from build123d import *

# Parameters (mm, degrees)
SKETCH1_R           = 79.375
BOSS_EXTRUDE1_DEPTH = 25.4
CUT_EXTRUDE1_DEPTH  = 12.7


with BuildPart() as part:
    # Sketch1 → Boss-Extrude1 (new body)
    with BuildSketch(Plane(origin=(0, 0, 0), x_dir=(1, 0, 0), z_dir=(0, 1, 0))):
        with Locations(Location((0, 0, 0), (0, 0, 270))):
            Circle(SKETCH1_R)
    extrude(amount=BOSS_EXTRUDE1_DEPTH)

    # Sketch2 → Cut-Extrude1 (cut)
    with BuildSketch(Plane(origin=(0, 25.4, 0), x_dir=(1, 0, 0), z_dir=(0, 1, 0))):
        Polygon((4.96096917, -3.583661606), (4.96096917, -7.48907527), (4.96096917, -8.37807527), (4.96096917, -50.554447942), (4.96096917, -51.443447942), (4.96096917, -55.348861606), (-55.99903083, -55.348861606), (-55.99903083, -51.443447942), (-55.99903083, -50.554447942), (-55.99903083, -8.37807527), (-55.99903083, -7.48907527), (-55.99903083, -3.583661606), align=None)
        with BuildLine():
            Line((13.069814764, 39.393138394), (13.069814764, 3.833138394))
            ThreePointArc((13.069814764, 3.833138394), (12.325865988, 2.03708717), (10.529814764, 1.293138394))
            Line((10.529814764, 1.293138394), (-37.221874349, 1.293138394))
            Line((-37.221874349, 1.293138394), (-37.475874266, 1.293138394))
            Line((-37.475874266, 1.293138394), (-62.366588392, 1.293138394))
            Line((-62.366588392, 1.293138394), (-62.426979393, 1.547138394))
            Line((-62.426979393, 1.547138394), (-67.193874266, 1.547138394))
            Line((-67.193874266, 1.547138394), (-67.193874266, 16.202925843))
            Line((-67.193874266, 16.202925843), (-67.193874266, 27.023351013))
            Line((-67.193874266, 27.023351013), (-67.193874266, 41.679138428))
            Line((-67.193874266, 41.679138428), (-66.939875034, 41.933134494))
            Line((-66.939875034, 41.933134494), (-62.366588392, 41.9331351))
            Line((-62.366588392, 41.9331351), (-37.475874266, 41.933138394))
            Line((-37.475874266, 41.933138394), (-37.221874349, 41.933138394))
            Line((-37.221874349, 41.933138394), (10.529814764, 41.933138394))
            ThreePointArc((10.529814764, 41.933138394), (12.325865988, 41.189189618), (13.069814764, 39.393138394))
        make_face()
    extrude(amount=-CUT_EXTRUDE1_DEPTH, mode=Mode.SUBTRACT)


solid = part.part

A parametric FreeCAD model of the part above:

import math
import FreeCAD as App
import Part
import Sketcher

V = App.Vector
Q = App.Units.Quantity


def add_polygon(sketch, points):
    """Adds a closed chain of lines whose ends are joined by coincident constraints."""
    first, n = sketch.GeometryCount, len(points)
    for a, b in zip(points, points[1:] + points[:1]):
        sketch.addGeometry(Part.LineSegment(App.Vector(*a, 0), App.Vector(*b, 0)), False)
    for i in range(n):
        sketch.addConstraint(Sketcher.Constraint("Coincident", first + i, 2, first + (i + 1) % n, 1))

doc = App.newDocument("Part")
body = doc.addObject("PartDesign::Body", "Body")

sketch1 = body.newObject("Sketcher::SketchObject", "Sketch")
sketch1.AttachmentSupport = (doc.getObject("XZ_Plane"), [""])
sketch1.MapMode = "FlatFace"
sketch1.addGeometry(Part.Circle(V(0, 0, 0), V(0, 0, 1), 79.375), False)
sketch1.addConstraint([
    Sketcher.Constraint("Coincident", 0, 3, -1, 1),
    Sketcher.Constraint("Diameter", 0, Q("6.25 in")),
])
pad1 = body.newObject("PartDesign::Pad", "Pad")
pad1.Profile = sketch1
pad1.Length = Q("1 in")
pad1.Reversed = True

sketch2 = body.newObject("Sketcher::SketchObject", "Sketch001")
sketch2.AttachmentSupport = (doc.getObject("XZ_Plane"), [""])
sketch2.MapMode = "FlatFace"
sketch2.AttachmentOffset = App.Placement(V(0, 0, -1 * 25.4), App.Rotation())
add_polygon(sketch2, [(4.960969, 55.348862), (4.960969, 3.583662), (-55.999031, 3.583662), (-55.999031, 55.348862)])
sketch2.addGeometry(Part.LineSegment(V(13.069815, -3.833138, 0), V(13.069815, -39.393138, 0)), False)
sketch2.addGeometry(Part.ArcOfCircle(Part.Circle(V(10.529815, -39.393138, 0), V(0, 0, 1), 2.54), math.radians(-90), math.radians(0)), False)
sketch2.addGeometry(Part.LineSegment(V(10.529815, -41.933138, 0), V(-37.475874, -41.933138, 0)), False)
sketch2.addGeometry(Part.LineSegment(V(-37.475874, -41.933138, 0), V(-62.366588, -41.933135, 0)), False)
sketch2.addGeometry(Part.LineSegment(V(-62.366588, -41.933135, 0), V(-66.939875, -41.933134, 0)), False)
sketch2.addGeometry(Part.LineSegment(V(-66.939875, -41.933134, 0), V(-67.193874, -41.679138, 0)), False)
sketch2.addGeometry(Part.LineSegment(V(-67.193874, -41.679138, 0), V(-67.193874, -1.547138, 0)), False)
sketch2.addGeometry(Part.LineSegment(V(-67.193874, -1.547138, 0), V(-62.426979, -1.547138, 0)), False)
sketch2.addGeometry(Part.LineSegment(V(-62.426979, -1.547138, 0), V(-62.366588, -1.293138, 0)), False)
sketch2.addGeometry(Part.LineSegment(V(-62.366588, -1.293138, 0), V(10.529815, -1.293138, 0)), False)
sketch2.addGeometry(Part.ArcOfCircle(Part.Circle(V(10.529815, -3.833138, 0), V(0, 0, 1), 2.54), math.radians(0), math.radians(90)), False)
sketch2.addConstraint([
    Sketcher.Constraint("Tangent", 4, 2, 5, 2),
    Sketcher.Constraint("Tangent", 5, 1, 6, 1),
    Sketcher.Constraint("Coincident", 6, 2, 7, 1),
    Sketcher.Constraint("Coincident", 7, 2, 8, 1),
    Sketcher.Constraint("Coincident", 8, 2, 9, 1),
    Sketcher.Constraint("Coincident", 9, 2, 10, 1),
    Sketcher.Constraint("Coincident", 10, 2, 11, 1),
    Sketcher.Constraint("Coincident", 11, 2, 12, 1),
    Sketcher.Constraint("Coincident", 12, 2, 13, 1),
    Sketcher.Constraint("Tangent", 13, 2, 14, 2),
    Sketcher.Constraint("Tangent", 14, 1, 4, 1),
    Sketcher.Constraint("Vertical", 0),
    Sketcher.Constraint("Horizontal", 1),
    Sketcher.Constraint("Vertical", 2),
    Sketcher.Constraint("Horizontal", 3),
    Sketcher.Constraint("Vertical", 4),
    Sketcher.Constraint("Horizontal", 6),
    Sketcher.Constraint("Horizontal", 8),
    Sketcher.Constraint("Vertical", 10),
    Sketcher.Constraint("Horizontal", 11),
    Sketcher.Constraint("Horizontal", 13),
    Sketcher.Constraint("Equal", 5, 14),
    Sketcher.Constraint("Vertical", 7, 2, 12, 2),
    Sketcher.Constraint("Radius", 5, Q("0.1 in")),
    Sketcher.Constraint("DistanceX", 1, 2, 1, 1, Q("2.4 in")),
    Sketcher.Constraint("DistanceY", 4, 2, 4, 1, Q("1.4 in")),
    Sketcher.Constraint("Angle", 7, Q("179.999992 deg")),
    Sketcher.Constraint("DistanceY", 10, 1, 10, 2, Q("1.58 in")),
    Sketcher.Constraint("DistanceY", 0, 2, 0, 1, Q("2.038 in")),
    Sketcher.Constraint("DistanceY", 14, 3, 2, 2, Q("2.33 in")),
    Sketcher.Constraint("DistanceX", 8, 2, 6, 2, Q("1.16 in")),
    Sketcher.Constraint("DistanceX", 9, 2, 8, 2, Q("0.01 in")),
    Sketcher.Constraint("DistanceY", 8, 2, 9, 2, Q("0.0099998 in")),
    Sketcher.Constraint("DistanceX", 6, 2, 6, 1, 48.005689),
    Sketcher.Constraint("Distance", 12, 0.261081),
    Sketcher.Constraint("DistanceX", 8, 2, 8, 1, 4.573287),
    Sketcher.Constraint("DistanceY", 5, 3, -1, 1, 39.393138),
    Sketcher.Constraint("DistanceX", -1, 1, 0, 2, 4.960969),
    Sketcher.Constraint("DistanceX", 7, 2, -1, 1, 62.366588),
])
pocket1 = body.newObject("PartDesign::Pocket", "Pocket")
pocket1.Profile = sketch2
pocket1.Length = Q("0.5 in")
pocket1.Reversed = True

doc.recompute()
